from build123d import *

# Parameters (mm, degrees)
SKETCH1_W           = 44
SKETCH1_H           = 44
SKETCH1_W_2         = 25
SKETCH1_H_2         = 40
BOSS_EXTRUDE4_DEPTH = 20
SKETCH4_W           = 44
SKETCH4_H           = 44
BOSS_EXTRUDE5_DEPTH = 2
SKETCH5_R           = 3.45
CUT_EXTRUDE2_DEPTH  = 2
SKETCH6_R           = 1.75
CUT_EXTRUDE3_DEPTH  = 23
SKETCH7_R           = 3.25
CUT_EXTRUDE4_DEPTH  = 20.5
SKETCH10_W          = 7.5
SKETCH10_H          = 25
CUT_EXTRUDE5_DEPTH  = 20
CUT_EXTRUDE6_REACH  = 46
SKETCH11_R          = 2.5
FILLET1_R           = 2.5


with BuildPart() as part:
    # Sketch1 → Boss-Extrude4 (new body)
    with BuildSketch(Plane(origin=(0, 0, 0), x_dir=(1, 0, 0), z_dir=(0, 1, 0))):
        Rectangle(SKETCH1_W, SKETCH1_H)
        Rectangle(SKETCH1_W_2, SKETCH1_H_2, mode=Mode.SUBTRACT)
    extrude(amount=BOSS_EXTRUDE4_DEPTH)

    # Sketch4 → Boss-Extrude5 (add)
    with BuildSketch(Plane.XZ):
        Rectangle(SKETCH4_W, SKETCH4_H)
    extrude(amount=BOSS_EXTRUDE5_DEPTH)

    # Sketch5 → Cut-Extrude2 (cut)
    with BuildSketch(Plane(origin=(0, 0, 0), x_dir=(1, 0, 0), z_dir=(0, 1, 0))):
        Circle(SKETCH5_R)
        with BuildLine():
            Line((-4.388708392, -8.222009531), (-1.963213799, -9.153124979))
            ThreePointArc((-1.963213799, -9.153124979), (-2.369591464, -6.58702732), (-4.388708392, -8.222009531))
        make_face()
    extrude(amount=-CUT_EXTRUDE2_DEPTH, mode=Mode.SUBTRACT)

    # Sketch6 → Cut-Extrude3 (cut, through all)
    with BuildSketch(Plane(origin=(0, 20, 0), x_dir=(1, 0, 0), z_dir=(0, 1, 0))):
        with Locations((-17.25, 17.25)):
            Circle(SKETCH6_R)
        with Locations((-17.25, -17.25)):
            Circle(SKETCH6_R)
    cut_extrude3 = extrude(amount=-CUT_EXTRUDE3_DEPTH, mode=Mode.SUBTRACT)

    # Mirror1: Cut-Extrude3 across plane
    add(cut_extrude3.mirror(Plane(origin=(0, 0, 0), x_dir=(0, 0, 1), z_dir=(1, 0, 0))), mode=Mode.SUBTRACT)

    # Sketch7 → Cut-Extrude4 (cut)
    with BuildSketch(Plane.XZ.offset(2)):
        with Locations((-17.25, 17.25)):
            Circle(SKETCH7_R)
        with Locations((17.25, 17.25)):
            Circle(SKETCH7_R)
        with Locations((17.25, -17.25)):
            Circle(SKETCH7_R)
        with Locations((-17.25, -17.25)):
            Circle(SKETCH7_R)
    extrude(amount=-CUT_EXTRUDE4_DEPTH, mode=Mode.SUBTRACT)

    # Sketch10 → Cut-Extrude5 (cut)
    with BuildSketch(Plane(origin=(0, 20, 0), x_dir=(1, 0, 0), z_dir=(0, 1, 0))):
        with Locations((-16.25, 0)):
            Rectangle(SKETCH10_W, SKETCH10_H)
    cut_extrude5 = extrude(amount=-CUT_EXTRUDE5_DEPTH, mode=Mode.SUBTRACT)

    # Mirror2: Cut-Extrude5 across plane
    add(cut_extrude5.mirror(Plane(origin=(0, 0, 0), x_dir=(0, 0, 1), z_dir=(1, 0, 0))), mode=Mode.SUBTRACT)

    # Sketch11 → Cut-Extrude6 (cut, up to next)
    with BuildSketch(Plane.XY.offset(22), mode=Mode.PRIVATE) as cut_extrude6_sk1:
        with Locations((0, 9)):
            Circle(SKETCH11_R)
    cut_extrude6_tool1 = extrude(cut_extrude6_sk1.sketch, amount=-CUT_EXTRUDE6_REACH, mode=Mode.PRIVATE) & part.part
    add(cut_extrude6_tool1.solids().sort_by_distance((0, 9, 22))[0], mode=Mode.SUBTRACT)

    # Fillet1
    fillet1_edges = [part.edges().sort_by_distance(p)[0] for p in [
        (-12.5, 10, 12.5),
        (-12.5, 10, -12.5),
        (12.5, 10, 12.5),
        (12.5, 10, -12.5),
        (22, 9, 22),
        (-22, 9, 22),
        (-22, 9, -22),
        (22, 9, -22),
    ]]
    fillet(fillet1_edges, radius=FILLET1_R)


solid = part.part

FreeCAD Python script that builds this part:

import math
import FreeCAD as App
import Part
import Sketcher

V = App.Vector


def edges_at(feature, points):
    """Names of the edges that pass closest to the given points."""
    edges = feature.Shape.Edges
    near = lambda p: min(range(len(edges)), key=lambda i: edges[i].distToShape(Part.Vertex(*p))[0])
    return sorted({f"Edge{near(p) + 1}" for p in points})

doc = App.newDocument("Part")
body = doc.addObject("PartDesign::Body", "Body")

sketch1 = doc.addObject("Sketcher::SketchObject", "Sketch")
body.addObject(sketch1)
sketch1.AttachmentSupport = (doc.XZ_Plane, [""])
sketch1.MapMode = "FlatFace"
sketch1.addGeometry([
    Part.LineSegment(V(-22, -22, 0), V(-22, 22, 0)),
    Part.LineSegment(V(-22, 22, 0), V(22, 22, 0)),
    Part.LineSegment(V(22, 22, 0), V(22, -22, 0)),
    Part.LineSegment(V(22, -22, 0), V(-22, -22, 0)),
    Part.LineSegment(V(12, 20, 0), V(-12, 20, 0)),
    Part.LineSegment(V(-12, 20, 0), V(-12, -20, 0)),
    Part.LineSegment(V(-12, -20, 0), V(12, -20, 0)),
    Part.LineSegment(V(12, -20, 0), V(12, 20, 0)),
], False)
sketch1.addConstraint([
    Sketcher.Constraint("Coincident", 0, 2, 1, 1),
    Sketcher.Constraint("Coincident", 1, 2, 2, 1),
    Sketcher.Constraint("Coincident", 2, 2, 3, 1),
    Sketcher.Constraint("Coincident", 3, 2, 0, 1),
    Sketcher.Constraint("Coincident", 4, 2, 5, 1),
    Sketcher.Constraint("Coincident", 5, 2, 6, 1),
    Sketcher.Constraint("Coincident", 6, 2, 7, 1),
    Sketcher.Constraint("Coincident", 7, 2, 4, 1),
    Sketcher.Constraint("Vertical", 0),
    Sketcher.Constraint("Horizontal", 1),
    Sketcher.Constraint("Vertical", 2),
    Sketcher.Constraint("Horizontal", 3),
    Sketcher.Constraint("Horizontal", 4),
    Sketcher.Constraint("Vertical", 5),
    Sketcher.Constraint("Horizontal", 6),
    Sketcher.Constraint("Vertical", 7),
    Sketcher.Constraint("Symmetric", 0, 2, 2, 2, -1, 1),
    Sketcher.Constraint("Symmetric", 4, 2, 6, 2, -1, 1),
    Sketcher.Constraint("Equal", 3, 0),
    Sketcher.Constraint("DistanceX", 1, 1, 1, 2, 44.0),
    Sketcher.Constraint("DistanceX", 4, 2, 4, 1, 25.0),
    Sketcher.Constraint("DistanceY", 5, 2, 5, 1, 40.0),
])
pad1 = doc.addObject("PartDesign::Pad", "Pad")
body.addObject(pad1)
pad1.Profile = sketch1
pad1.Length = 20
pad1.Reversed = True

sketch2 = doc.addObject("Sketcher::SketchObject", "Sketch001")
body.addObject(sketch2)
sketch2.AttachmentSupport = (doc.XZ_Plane, [""])
sketch2.MapMode = "FlatFace"
sketch2.addGeometry([
    Part.LineSegment(V(-22, 22, 0), V(-22, -22, 0)),
    Part.LineSegment(V(-22, -22, 0), V(22, -22, 0)),
    Part.LineSegment(V(22, -22, 0), V(22, 22, 0)),
    Part.LineSegment(V(22, 22, 0), V(-22, 22, 0)),
], False)
sketch2.addConstraint([
    Sketcher.Constraint("Coincident", 0, 2, 1, 1),
    Sketcher.Constraint("Coincident", 1, 2, 2, 1),
    Sketcher.Constraint("Coincident", 2, 2, 3, 1),
    Sketcher.Constraint("Coincident", 3, 2, 0, 1),
    Sketcher.Constraint("Vertical", 0),
    Sketcher.Constraint("Horizontal", 1),
    Sketcher.Constraint("Vertical", 2),
    Sketcher.Constraint("Horizontal", 3),
    Sketcher.Constraint("Symmetric", 0, 2, 2, 2, -1, 1),
    Sketcher.Constraint("Equal", 3, 0),
    Sketcher.Constraint("DistanceX", 1, 1, 1, 2, 44.0),
])
pad2 = doc.addObject("PartDesign::Pad", "Pad001")
body.addObject(pad2)
pad2.Profile = sketch2
pad2.Length = 2

sketch3 = doc.addObject("Sketcher::SketchObject", "Sketch002")
body.addObject(sketch3)
sketch3.AttachmentSupport = (doc.XZ_Plane, [""])
sketch3.MapMode = "FlatFace"
sketch3.addGeometry([
    Part.Circle(V(0, 0, 0), V(0, 0, 1), 3.5),
    Part.LineSegment(V(-4.4, 8.2, 0), V(-2, 9.2, 0)),
    Part.ArcOfCircle(Part.Circle(V(-2.9, 8, 0), V(0, 0, 1), 1.5), math.radians(171), math.radians(411)),
], False)
sketch3.addConstraint([
    Sketcher.Constraint("Coincident", 1, 1, 2, 1),
    Sketcher.Constraint("Coincident", 2, 2, 1, 2),
    Sketcher.Constraint("Coincident", 0, 3, -1, 1),
    Sketcher.Constraint("Diameter", 0, 6.9),
    Sketcher.Constraint("Radius", 2, 1.5),
    Sketcher.Constraint("DistanceX", 2, 3, -1, 1, 2.907171),
    Sketcher.Constraint("DistanceX", 1, 1, -1, 1, 4.388708),
    Sketcher.Constraint("DistanceY", -1, 1, 1, 1, 8.22201),
    Sketcher.Constraint("Distance", 1, 2.598076),
])
pocket1 = doc.addObject("PartDesign::Pocket", "Pocket")
body.addObject(pocket1)
pocket1.Profile = sketch3
pocket1.Length = 2
pocket1.Reversed = True

sketch4 = doc.addObject("Sketcher::SketchObject", "Sketch003")
body.addObject(sketch4)
sketch4.AttachmentSupport = (doc.XZ_Plane, [""])
sketch4.MapMode = "FlatFace"
sketch4.AttachmentOffset = App.Placement(V(0, 0, -20), App.Rotation())
sketch4.addGeometry([
    Part.Circle(V(-17.2, -17.2, 0), V(0, 0, 1), 1.8),
    Part.Circle(V(-17.2, 17.2, 0), V(0, 0, 1), 1.8),
], False)
sketch4.addConstraint([
    Sketcher.Constraint("Equal", 0, 1),
    Sketcher.Constraint("Symmetric", 0, 3, 1, 3, -1),
    Sketcher.Constraint("Diameter", 0, 3.5),
    Sketcher.Constraint("DistanceY", 0, 3, 1, 3, 34.5),
    Sketcher.Constraint("DistanceX", 0, 3, -1, 1, 17.25),
])
pocket2 = doc.addObject("PartDesign::Pocket", "Pocket001")
body.addObject(pocket2)
pocket2.Profile = sketch4
pocket2.Type = "ThroughAll"
pocket2.Reversed = True
doc.recompute()

mirrored = doc.addObject("PartDesign::Mirrored", "Mirrored")
body.addObject(mirrored)
mirrored.Originals = [pocket2]
mirrored.MirrorPlane = (doc.YZ_Plane, [""])
body.Tip = mirrored

sketch5 = doc.addObject("Sketcher::SketchObject", "Sketch004")
body.addObject(sketch5)
sketch5.AttachmentSupport = (doc.XZ_Plane, [""])
sketch5.MapMode = "FlatFace"
sketch5.AttachmentOffset = App.Placement(V(0, 0, 2), App.Rotation())
sketch5.addGeometry([
    Part.Circle(V(-17.2, 17.2, 0), V(0, 0, 1), 3.2),
    Part.Circle(V(17.2, 17.2, 0), V(0, 0, 1), 3.2),
    Part.Circle(V(17.2, -17.2, 0), V(0, 0, 1), 3.2),
    Part.Circle(V(-17.2, -17.2, 0), V(0, 0, 1), 3.2),
], False)
sketch5.addConstraint([
    Sketcher.Constraint("Equal", 0, 1),
    Sketcher.Constraint("Equal", 1, 2),
    Sketcher.Constraint("Equal", 2, 3),
    Sketcher.Constraint("Symmetric", 0, 3, 2, 3, -1, 1),
    Sketcher.Constraint("Symmetric", 1, 3, 3, 3, -1, 1),
    Sketcher.Constraint("Symmetric", 0, 3, 1, 3, -2),
    Sketcher.Constraint("Diameter", 0, 6.5),
    Sketcher.Constraint("DistanceX", 0, 3, 1, 3, 34.5),
    Sketcher.Constraint("DistanceY", 2, 3, 1, 3, 34.5),
])
pocket3 = doc.addObject("PartDesign::Pocket", "Pocket002")
body.addObject(pocket3)
pocket3.Profile = sketch5
pocket3.Length = 20.5

sketch6 = doc.addObject("Sketcher::SketchObject", "Sketch005")
body.addObject(sketch6)
sketch6.AttachmentSupport = (doc.XZ_Plane, [""])
sketch6.MapMode = "FlatFace"
sketch6.AttachmentOffset = App.Placement(V(0, 0, -20), App.Rotation())
sketch6.addGeometry([
    Part.LineSegment(V(-20, -12, 0), V(-20, 12, 0)),
    Part.LineSegment(V(-20, 12, 0), V(-12, 12, 0)),
    Part.LineSegment(V(-12, 12, 0), V(-12, -12, 0)),
    Part.LineSegment(V(-12, -12, 0), V(-20, -12, 0)),
], False)
sketch6.addConstraint([
    Sketcher.Constraint("Coincident", 0, 2, 1, 1),
    Sketcher.Constraint("Coincident", 1, 2, 2, 1),
    Sketcher.Constraint("Coincident", 2, 2, 3, 1),
    Sketcher.Constraint("Coincident", 3, 2, 0, 1),
    Sketcher.Constraint("Vertical", 0),
    Sketcher.Constraint("Horizontal", 1),
    Sketcher.Constraint("Vertical", 2),
    Sketcher.Constraint("Horizontal", 3),
    Sketcher.Constraint("DistanceY", 0, 1, 0, 2, 25.0),
    Sketcher.Constraint("DistanceX", 1, 1, 1, 2, 7.5),
    Sketcher.Constraint("DistanceX", 0, 2, -1, 1, 20.0),
    Sketcher.Constraint("DistanceY", -1, 1, 0, 2, 12.5),
])
pocket4 = doc.addObject("PartDesign::Pocket", "Pocket003")
body.addObject(pocket4)
pocket4.Profile = sketch6
pocket4.Length = 20
pocket4.Reversed = True
doc.recompute()

mirrored2 = doc.addObject("PartDesign::Mirrored", "Mirrored001")
body.addObject(mirrored2)
mirrored2.Originals = [pocket4]
mirrored2.MirrorPlane = (doc.YZ_Plane, [""])
body.Tip = mirrored2

sketch7 = doc.addObject("Sketcher::SketchObject", "Sketch006")
body.addObject(sketch7)
sketch7.AttachmentSupport = (doc.XY_Plane, [""])
sketch7.MapMode = "FlatFace"
sketch7.AttachmentOffset = App.Placement(V(0, 0, 22), App.Rotation())
sketch7.addGeometry(Part.Circle(V(0, 9, 0), V(0, 0, 1), 2.5), False)
sketch7.addConstraint([
    Sketcher.Constraint("PointOnObject", 0, 3, -2),
    Sketcher.Constraint("Diameter", 0, 5.0),
    Sketcher.Constraint("DistanceY", -1, 1, 0, 3, 9.0),
])
pocket5 = doc.addObject("PartDesign::Pocket", "Pocket004")
body.addObject(pocket5)
pocket5.Profile = sketch7
pocket5.Type = "UpToFirst"
doc.recompute()

fillet = doc.addObject("PartDesign::Fillet", "Fillet")
body.addObject(fillet)
fillet.Base = (pocket5, edges_at(pocket5, [
    (-12.5, 10, 12.5),
    (-12.5, 10, -12.5),
    (12.5, 10, 12.5),
    (12.5, 10, -12.5),
    (22, 9, 22),
    (-22, 9, 22),
    (-22, 9, -22),
    (22, 9, -22),
]))
fillet.Radius = 2.5

doc.recompute()
